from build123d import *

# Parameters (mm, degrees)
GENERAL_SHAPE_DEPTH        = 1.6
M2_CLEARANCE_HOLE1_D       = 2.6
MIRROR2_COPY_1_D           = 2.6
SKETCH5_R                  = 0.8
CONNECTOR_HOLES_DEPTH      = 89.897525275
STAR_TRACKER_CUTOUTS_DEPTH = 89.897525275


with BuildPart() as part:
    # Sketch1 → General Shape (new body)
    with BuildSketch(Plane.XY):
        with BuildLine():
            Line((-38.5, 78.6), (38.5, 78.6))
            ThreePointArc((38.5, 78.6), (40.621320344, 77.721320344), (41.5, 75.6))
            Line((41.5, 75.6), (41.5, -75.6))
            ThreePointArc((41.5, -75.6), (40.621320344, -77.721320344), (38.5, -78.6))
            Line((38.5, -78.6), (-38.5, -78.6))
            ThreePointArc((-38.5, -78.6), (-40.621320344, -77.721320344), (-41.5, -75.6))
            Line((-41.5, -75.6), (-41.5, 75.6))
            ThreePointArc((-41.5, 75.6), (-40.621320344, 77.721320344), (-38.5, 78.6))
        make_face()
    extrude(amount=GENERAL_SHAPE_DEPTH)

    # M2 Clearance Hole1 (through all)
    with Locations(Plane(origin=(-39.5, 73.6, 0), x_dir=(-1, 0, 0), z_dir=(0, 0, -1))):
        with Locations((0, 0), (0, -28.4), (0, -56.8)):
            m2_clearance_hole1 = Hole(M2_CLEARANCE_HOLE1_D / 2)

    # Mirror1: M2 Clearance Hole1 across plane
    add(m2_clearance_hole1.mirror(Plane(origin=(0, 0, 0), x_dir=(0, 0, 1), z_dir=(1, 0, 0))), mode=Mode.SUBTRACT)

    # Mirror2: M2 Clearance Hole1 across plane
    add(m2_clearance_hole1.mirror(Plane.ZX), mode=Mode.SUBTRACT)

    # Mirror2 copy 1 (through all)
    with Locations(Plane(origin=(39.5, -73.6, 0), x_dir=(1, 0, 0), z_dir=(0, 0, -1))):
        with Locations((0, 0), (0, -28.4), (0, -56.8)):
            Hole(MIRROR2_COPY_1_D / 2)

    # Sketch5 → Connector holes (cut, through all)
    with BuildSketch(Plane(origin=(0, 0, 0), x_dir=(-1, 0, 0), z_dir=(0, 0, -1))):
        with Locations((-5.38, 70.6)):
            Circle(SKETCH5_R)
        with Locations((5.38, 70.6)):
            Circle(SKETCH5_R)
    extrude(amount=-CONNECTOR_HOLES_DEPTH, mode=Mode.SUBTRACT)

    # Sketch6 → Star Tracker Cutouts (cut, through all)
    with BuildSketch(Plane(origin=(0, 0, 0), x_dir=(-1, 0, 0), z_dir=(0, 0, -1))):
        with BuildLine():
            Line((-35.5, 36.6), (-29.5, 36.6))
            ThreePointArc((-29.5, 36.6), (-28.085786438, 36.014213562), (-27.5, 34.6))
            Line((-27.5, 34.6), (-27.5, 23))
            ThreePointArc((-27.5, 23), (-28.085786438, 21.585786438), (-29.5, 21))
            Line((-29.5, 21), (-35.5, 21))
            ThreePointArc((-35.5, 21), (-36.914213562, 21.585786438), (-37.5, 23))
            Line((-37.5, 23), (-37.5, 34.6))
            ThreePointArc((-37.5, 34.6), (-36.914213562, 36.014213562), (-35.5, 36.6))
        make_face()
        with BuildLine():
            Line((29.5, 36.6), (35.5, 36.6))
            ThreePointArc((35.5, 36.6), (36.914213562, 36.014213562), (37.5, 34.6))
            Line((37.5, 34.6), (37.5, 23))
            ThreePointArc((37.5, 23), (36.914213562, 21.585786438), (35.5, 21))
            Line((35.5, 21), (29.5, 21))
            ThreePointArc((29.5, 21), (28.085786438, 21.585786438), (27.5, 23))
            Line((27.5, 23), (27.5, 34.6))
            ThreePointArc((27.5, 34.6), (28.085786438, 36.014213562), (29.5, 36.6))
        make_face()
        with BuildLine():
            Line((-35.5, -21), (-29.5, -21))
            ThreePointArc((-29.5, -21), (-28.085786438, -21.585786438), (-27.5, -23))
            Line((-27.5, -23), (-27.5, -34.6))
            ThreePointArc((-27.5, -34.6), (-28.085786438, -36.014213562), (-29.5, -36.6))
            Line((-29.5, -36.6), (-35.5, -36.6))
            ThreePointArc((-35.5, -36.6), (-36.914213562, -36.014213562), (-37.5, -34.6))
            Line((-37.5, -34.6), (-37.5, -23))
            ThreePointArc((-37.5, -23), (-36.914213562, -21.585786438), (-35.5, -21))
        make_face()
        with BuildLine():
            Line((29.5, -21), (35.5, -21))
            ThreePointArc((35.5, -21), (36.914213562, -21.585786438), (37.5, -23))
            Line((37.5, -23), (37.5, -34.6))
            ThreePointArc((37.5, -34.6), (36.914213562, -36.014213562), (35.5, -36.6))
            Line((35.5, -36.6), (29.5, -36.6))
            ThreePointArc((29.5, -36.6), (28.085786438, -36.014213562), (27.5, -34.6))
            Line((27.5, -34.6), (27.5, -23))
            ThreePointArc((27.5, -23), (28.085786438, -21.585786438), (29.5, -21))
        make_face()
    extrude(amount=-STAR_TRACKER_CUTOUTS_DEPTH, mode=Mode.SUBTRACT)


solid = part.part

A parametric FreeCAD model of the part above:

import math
import FreeCAD as App
import Part
import Sketcher
from FreeCAD import Vector
Q = App.Units.Quantity

doc = App.newDocument("Part")
params = doc.addObject("Spreadsheet::Sheet", "Params")
for row, (alias, value) in enumerate([
    ("sketch1_radius", "3 mm"),
    ("sketch1_width", "77 mm"),
    ("sketch1_height", "151.2 mm"),
    ("pad1_length", "1.6 mm"),
    ("sketch2_diameter", "2.6 mm"),
    ("hole_diameter", "2.6 mm"),
    ("sketch3_diameter", "2.6 mm"),
    ("hole2_diameter", "2.6 mm"),
    ("sketch4_diameter", "1.6 mm"),
    ("sketch5_radius", "2 mm"),
    ("sketch5_width", "6 mm"),
    ("sketch5_height", "11.6 mm"),
], start=1):
    params.set(f"A{row}", alias)
    params.set(f"B{row}", "=" + value)
    params.setAlias(f"B{row}", alias)

body = doc.addObject("PartDesign::Body", "Body")

# Sketch on XY plane
sketch1 = body.newObject("Sketcher::SketchObject", "Sketch")
sketch1.AttachmentSupport = (doc.getObject("XY_Plane"), [""])
sketch1.MapMode = "FlatFace"
sketch1.addGeometry([
    Part.LineSegment(Vector(38.5, 78.6, 0), Vector(-38.5, 78.6, 0)),  # 0
    Part.ArcOfCircle(Part.Circle(Vector(-38.5, 75.6, 0), Vector(0, 0, 1), 3), math.radians(90), math.radians(180)),  # 1
    Part.LineSegment(Vector(-41.5, 75.6, 0), Vector(-41.5, -75.6, 0)),  # 2
    Part.ArcOfCircle(Part.Circle(Vector(-38.5, -75.6, 0), Vector(0, 0, 1), 3), math.radians(180), math.radians(270)),  # 3
    Part.LineSegment(Vector(-38.5, -78.6, 0), Vector(38.5, -78.6, 0)),  # 4
    Part.ArcOfCircle(Part.Circle(Vector(38.5, -75.6, 0), Vector(0, 0, 1), 3), math.radians(-90), math.radians(0)),  # 5
    Part.LineSegment(Vector(41.5, -75.6, 0), Vector(41.5, 75.6, 0)),  # 6
    Part.ArcOfCircle(Part.Circle(Vector(38.5, 75.6, 0), Vector(0, 0, 1), 3), math.radians(0), math.radians(90)),  # 7
], False)
sketch1.addConstraint([
    Sketcher.Constraint("Tangent", 0, 2, 1, 1),
    Sketcher.Constraint("Tangent", 1, 2, 2, 1),
    Sketcher.Constraint("Tangent", 2, 2, 3, 1),
    Sketcher.Constraint("Tangent", 3, 2, 4, 1),
    Sketcher.Constraint("Tangent", 4, 2, 5, 1),
    Sketcher.Constraint("Tangent", 5, 2, 6, 1),
    Sketcher.Constraint("Tangent", 6, 2, 7, 1),
    Sketcher.Constraint("Tangent", 7, 2, 0, 1),
    Sketcher.Constraint("Horizontal", 0),
    Sketcher.Constraint("Vertical", 2),
    Sketcher.Constraint("Horizontal", 4),
    Sketcher.Constraint("Vertical", 6),
    Sketcher.Constraint("Equal", 1, 3),
    Sketcher.Constraint("Equal", 3, 5),
    Sketcher.Constraint("Equal", 5, 7),
    Sketcher.Constraint("Symmetric", 1, 3, 5, 3, -1, 1),
    Sketcher.Constraint("Radius", 1, Q("3 mm")),
    Sketcher.Constraint("DistanceX", 0, 2, 0, 1, Q("77 mm")),
    Sketcher.Constraint("DistanceY", 2, 2, 2, 1, Q("151.2 mm")),
])
sketch1.setExpression("Constraints[16]", "Params.sketch1_radius")
sketch1.setExpression("Constraints[17]", "Params.sketch1_width")
sketch1.setExpression("Constraints[18]", "Params.sketch1_height")
pad1 = body.newObject("PartDesign::Pad", "Pad")
pad1.Profile = sketch1
pad1.setExpression("Length", "Params.pad1_length")

# Sketch on XY plane
sketch2 = body.newObject("Sketcher::SketchObject", "Sketch001")
sketch2.AttachmentSupport = (doc.getObject("XY_Plane"), [""])
sketch2.MapMode = "FlatFace"
sketch2.addGeometry([
    Part.Circle(Vector(-39.5, 73.6, 0), Vector(0, 0, 1), 1.3),
    Part.Circle(Vector(-39.5, 45.2, 0), Vector(0, 0, 1), 1.3),
    Part.Circle(Vector(-39.5, 16.8, 0), Vector(0, 0, 1), 1.3),
], False)
sketch2.addConstraint([
    Sketcher.Constraint("Equal", 0, 1),
    Sketcher.Constraint("Equal", 1, 2),
    Sketcher.Constraint("Vertical", 0, 3, 1, 3),
    Sketcher.Constraint("Vertical", 1, 3, 2, 3),
    Sketcher.Constraint("Diameter", 0, Q("2.6 mm")),
    Sketcher.Constraint("DistanceX", 0, 3, -1, 1, Q("39.5 mm")),
    Sketcher.Constraint("DistanceY", -1, 1, 0, 3, Q("73.6 mm")),
    Sketcher.Constraint("DistanceY", -1, 1, 1, 3, Q("45.2 mm")),
    Sketcher.Constraint("DistanceY", -1, 1, 2, 3, Q("16.8 mm")),
])
sketch2.setExpression("Constraints[4]", "Params.sketch2_diameter")
doc.recompute()
hole = body.newObject("PartDesign::Hole", "Hole")
hole.Profile = sketch2
hole.ThreadType = "None"
hole.setExpression("Diameter", "Params.hole_diameter")
hole.DepthType = "ThroughAll"
hole.Reversed = True
doc.recompute()

mirrored = body.newObject("PartDesign::Mirrored", "Mirrored")
mirrored.Originals = [hole]
mirrored.MirrorPlane = (doc.getObject("YZ_Plane"), [""])
body.Tip = mirrored
doc.recompute()

mirrored2 = body.newObject("PartDesign::Mirrored", "Mirrored001")
mirrored2.Originals = [hole]
mirrored2.MirrorPlane = (doc.getObject("XZ_Plane"), [""])
body.Tip = mirrored2

# Sketch on XY plane
sketch3 = body.newObject("Sketcher::SketchObject", "Sketch002")
sketch3.AttachmentSupport = (doc.getObject("XY_Plane"), [""])
sketch3.MapMode = "FlatFace"
sketch3.addGeometry([
    Part.Circle(Vector(39.5, -73.6, 0), Vector(0, 0, 1), 1.3),
    Part.Circle(Vector(39.5, -45.2, 0), Vector(0, 0, 1), 1.3),
    Part.Circle(Vector(39.5, -16.8, 0), Vector(0, 0, 1), 1.3),
], False)
sketch3.addConstraint([
    Sketcher.Constraint("Equal", 0, 1),
    Sketcher.Constraint("Equal", 1, 2),
    Sketcher.Constraint("Vertical", 0, 3, 1, 3),
    Sketcher.Constraint("Vertical", 1, 3, 2, 3),
    Sketcher.Constraint("Diameter", 0, Q("2.6 mm")),
    Sketcher.Constraint("DistanceX", -1, 1, 0, 3, Q("39.5 mm")),
    Sketcher.Constraint("DistanceY", 0, 3, -1, 1, Q("73.6 mm")),
    Sketcher.Constraint("DistanceY", 1, 3, -1, 1, Q("45.2 mm")),
    Sketcher.Constraint("DistanceY", 2, 3, -1, 1, Q("16.8 mm")),
])
sketch3.setExpression("Constraints[4]", "Params.sketch3_diameter")
doc.recompute()
hole2 = body.newObject("PartDesign::Hole", "Hole001")
hole2.Profile = sketch3
hole2.ThreadType = "None"
hole2.setExpression("Diameter", "Params.hole2_diameter")
hole2.DepthType = "ThroughAll"
hole2.Reversed = True

# Sketch on XY plane
sketch4 = body.newObject("Sketcher::SketchObject", "Sketch003")
sketch4.AttachmentSupport = (doc.getObject("XY_Plane"), [""])
sketch4.MapMode = "FlatFace"
sketch4.addGeometry([
    Part.Circle(Vector(5.4, 70.6, 0), Vector(0, 0, 1), 0.8),
    Part.Circle(Vector(-5.4, 70.6, 0), Vector(0, 0, 1), 0.8),
], False)
sketch4.addConstraint([
    Sketcher.Constraint("Equal", 0, 1),
    Sketcher.Constraint("Symmetric", 0, 3, 1, 3, -2),
    Sketcher.Constraint("Diameter", 0, Q("1.6 mm")),
    Sketcher.Constraint("DistanceY", -1, 1, 0, 3, Q("70.6 mm")),
    Sketcher.Constraint("DistanceX", -1, 1, 0, 3, Q("5.38 mm")),
])
sketch4.setExpression("Constraints[2]", "Params.sketch4_diameter")
pocket1 = body.newObject("PartDesign::Pocket", "Pocket")
pocket1.Profile = sketch4
pocket1.Type = "ThroughAll"
pocket1.Reversed = True

# Sketch on XY plane
sketch5 = body.newObject("Sketcher::SketchObject", "Sketch004")
sketch5.AttachmentSupport = (doc.getObject("XY_Plane"), [""])
sketch5.MapMode = "FlatFace"
sketch5.addGeometry([
    Part.LineSegment(Vector(29.5, 36.6, 0), Vector(35.5, 36.6, 0)),  # 0
    Part.ArcOfCircle(Part.Circle(Vector(35.5, 34.6, 0), Vector(0, 0, 1), 2), math.radians(0), math.radians(90)),  # 1
    Part.LineSegment(Vector(37.5, 34.6, 0), Vector(37.5, 23, 0)),  # 2
    Part.ArcOfCircle(Part.Circle(Vector(35.5, 23, 0), Vector(0, 0, 1), 2), math.radians(-90), math.radians(0)),  # 3
    Part.LineSegment(Vector(35.5, 21, 0), Vector(29.5, 21, 0)),  # 4
    Part.ArcOfCircle(Part.Circle(Vector(29.5, 23, 0), Vector(0, 0, 1), 2), math.radians(-180), math.radians(-90)),  # 5
    Part.LineSegment(Vector(27.5, 23, 0), Vector(27.5, 34.6, 0)),  # 6
    Part.ArcOfCircle(Part.Circle(Vector(29.5, 34.6, 0), Vector(0, 0, 1), 2), math.radians(90), math.radians(180)),  # 7
    Part.LineSegment(Vector(-35.5, 36.6, 0), Vector(-29.5, 36.6, 0)),  # 8
    Part.ArcOfCircle(Part.Circle(Vector(-29.5, 34.6, 0), Vector(0, 0, 1), 2), math.radians(0), math.radians(90)),  # 9
    Part.LineSegment(Vector(-27.5, 34.6, 0), Vector(-27.5, 23, 0)),  # 10
    Part.ArcOfCircle(Part.Circle(Vector(-29.5, 23, 0), Vector(0, 0, 1), 2), math.radians(-90), math.radians(0)),  # 11
    Part.LineSegment(Vector(-29.5, 21, 0), Vector(-35.5, 21, 0)),  # 12
    Part.ArcOfCircle(Part.Circle(Vector(-35.5, 23, 0), Vector(0, 0, 1), 2), math.radians(-180), math.radians(-90)),  # 13
    Part.LineSegment(Vector(-37.5, 23, 0), Vector(-37.5, 34.6, 0)),  # 14
    Part.ArcOfCircle(Part.Circle(Vector(-35.5, 34.6, 0), Vector(0, 0, 1), 2), math.radians(90), math.radians(180)),  # 15
    Part.LineSegment(Vector(29.5, -21, 0), Vector(35.5, -21, 0)),  # 16
    Part.ArcOfCircle(Part.Circle(Vector(35.5, -23, 0), Vector(0, 0, 1), 2), math.radians(0), math.radians(90)),  # 17
    Part.LineSegment(Vector(37.5, -23, 0), Vector(37.5, -34.6, 0)),  # 18
    Part.ArcOfCircle(Part.Circle(Vector(35.5, -34.6, 0), Vector(0, 0, 1), 2), math.radians(-90), math.radians(0)),  # 19
    Part.LineSegment(Vector(35.5, -36.6, 0), Vector(29.5, -36.6, 0)),  # 20
    Part.ArcOfCircle(Part.Circle(Vector(29.5, -34.6, 0), Vector(0, 0, 1), 2), math.radians(-180), math.radians(-90)),  # 21
    Part.LineSegment(Vector(27.5, -34.6, 0), Vector(27.5, -23, 0)),  # 22
    Part.ArcOfCircle(Part.Circle(Vector(29.5, -23, 0), Vector(0, 0, 1), 2), math.radians(90), math.radians(180)),  # 23
    Part.LineSegment(Vector(-35.5, -21, 0), Vector(-29.5, -21, 0)),  # 24
    Part.ArcOfCircle(Part.Circle(Vector(-29.5, -23, 0), Vector(0, 0, 1), 2), math.radians(0), math.radians(90)),  # 25
    Part.LineSegment(Vector(-27.5, -23, 0), Vector(-27.5, -34.6, 0)),  # 26
    Part.ArcOfCircle(Part.Circle(Vector(-29.5, -34.6, 0), Vector(0, 0, 1), 2), math.radians(-90), math.radians(0)),  # 27
    Part.LineSegment(Vector(-29.5, -36.6, 0), Vector(-35.5, -36.6, 0)),  # 28
    Part.ArcOfCircle(Part.Circle(Vector(-35.5, -34.6, 0), Vector(0, 0, 1), 2), math.radians(-180), math.radians(-90)),  # 29
    Part.LineSegment(Vector(-37.5, -34.6, 0), Vector(-37.5, -23, 0)),  # 30
    Part.ArcOfCircle(Part.Circle(Vector(-35.5, -23, 0), Vector(0, 0, 1), 2), math.radians(90), math.radians(180)),  # 31
], False)
sketch5.addConstraint([
    Sketcher.Constraint("Tangent", 0, 2, 1, 2),
    Sketcher.Constraint("Tangent", 1, 1, 2, 1),
    Sketcher.Constraint("Tangent", 2, 2, 3, 2),
    Sketcher.Constraint("Tangent", 3, 1, 4, 1),
    Sketcher.Constraint("Tangent", 4, 2, 5, 2),
    Sketcher.Constraint("Tangent", 5, 1, 6, 1),
    Sketcher.Constraint("Tangent", 6, 2, 7, 2),
    Sketcher.Constraint("Tangent", 7, 1, 0, 1),
    Sketcher.Constraint("Tangent", 8, 2, 9, 2),
    Sketcher.Constraint("Tangent", 9, 1, 10, 1),
    Sketcher.Constraint("Tangent", 10, 2, 11, 2),
    Sketcher.Constraint("Tangent", 11, 1, 12, 1),
    Sketcher.Constraint("Tangent", 12, 2, 13, 2),
    Sketcher.Constraint("Tangent", 13, 1, 14, 1),
    Sketcher.Constraint("Tangent", 14, 2, 15, 2),
    Sketcher.Constraint("Tangent", 15, 1, 8, 1),
    Sketcher.Constraint("Tangent", 16, 2, 17, 2),
    Sketcher.Constraint("Tangent", 17, 1, 18, 1),
    Sketcher.Constraint("Tangent", 18, 2, 19, 2),
    Sketcher.Constraint("Tangent", 19, 1, 20, 1),
    Sketcher.Constraint("Tangent", 20, 2, 21, 2),
    Sketcher.Constraint("Tangent", 21, 1, 22, 1),
    Sketcher.Constraint("Tangent", 22, 2, 23, 2),
    Sketcher.Constraint("Tangent", 23, 1, 16, 1),
    Sketcher.Constraint("Tangent", 24, 2, 25, 2),
    Sketcher.Constraint("Tangent", 25, 1, 26, 1),
    Sketcher.Constraint("Tangent", 26, 2, 27, 2),
    Sketcher.Constraint("Tangent", 27, 1, 28, 1),
    Sketcher.Constraint("Tangent", 28, 2, 29, 2),
    Sketcher.Constraint("Tangent", 29, 1, 30, 1),
    Sketcher.Constraint("Tangent", 30, 2, 31, 2),
    Sketcher.Constraint("Tangent", 31, 1, 24, 1),
    Sketcher.Constraint("Horizontal", 0),
    Sketcher.Constraint("Vertical", 2),
    Sketcher.Constraint("Horizontal", 4),
    Sketcher.Constraint("Vertical", 6),
    Sketcher.Constraint("Horizontal", 8),
    Sketcher.Constraint("Vertical", 10),
    Sketcher.Constraint("Horizontal", 12),
    Sketcher.Constraint("Vertical", 14),
    Sketcher.Constraint("Horizontal", 16),
    Sketcher.Constraint("Vertical", 18),
    Sketcher.Constraint("Horizontal", 20),
    Sketcher.Constraint("Vertical", 22),
    Sketcher.Constraint("Horizontal", 24),
    Sketcher.Constraint("Vertical", 26),
    Sketcher.Constraint("Horizontal", 28),
    Sketcher.Constraint("Vertical", 30),
    Sketcher.Constraint("Equal", 1, 3),
    Sketcher.Constraint("Equal", 3, 5),
    Sketcher.Constraint("Equal", 5, 7),
    Sketcher.Constraint("Equal", 7, 9),
    Sketcher.Constraint("Equal", 9, 11),
    Sketcher.Constraint("Equal", 11, 13),
    Sketcher.Constraint("Equal", 13, 15),
    Sketcher.Constraint("Equal", 15, 17),
    Sketcher.Constraint("Equal", 17, 19),
    Sketcher.Constraint("Equal", 19, 21),
    Sketcher.Constraint("Equal", 21, 23),
    Sketcher.Constraint("Equal", 23, 25),
    Sketcher.Constraint("Equal", 25, 27),
    Sketcher.Constraint("Equal", 27, 29),
    Sketcher.Constraint("Equal", 29, 31),
    Sketcher.Constraint("Symmetric", 13, 3, 17, 3, -1, 1),
    Sketcher.Constraint("Symmetric", 9, 3, 21, 3, -1, 1),
    Sketcher.Constraint("Symmetric", 5, 3, 25, 3, -1, 1),
    Sketcher.Constraint("Symmetric", 1, 3, 29, 3, -1, 1),
    Sketcher.Constraint("Symmetric", 7, 3, 9, 3, -2),
    Sketcher.Constraint("Symmetric", 3, 3, 13, 3, -2),
    Sketcher.Constraint("Radius", 1, Q("2 mm")),
    Sketcher.Constraint("DistanceX", 0, 1, 0, 2, Q("6 mm")),
    Sketcher.Constraint("DistanceY", 2, 2, 2, 1, Q("11.6 mm")),
    Sketcher.Constraint("DistanceY", -1, 1, 3, 3, Q("23 mm")),
    Sketcher.Constraint("DistanceX", 9, 3, 7, 3, Q("59 mm")),
])
sketch5.setExpression("Constraints[69]", "Params.sketch5_radius")
sketch5.setExpression("Constraints[70]", "Params.sketch5_width")
sketch5.setExpression("Constraints[71]", "Params.sketch5_height")
pocket2 = body.newObject("PartDesign::Pocket", "Pocket001")
pocket2.Profile = sketch5
pocket2.Type = "ThroughAll"
pocket2.Reversed = True

doc.recompute()
